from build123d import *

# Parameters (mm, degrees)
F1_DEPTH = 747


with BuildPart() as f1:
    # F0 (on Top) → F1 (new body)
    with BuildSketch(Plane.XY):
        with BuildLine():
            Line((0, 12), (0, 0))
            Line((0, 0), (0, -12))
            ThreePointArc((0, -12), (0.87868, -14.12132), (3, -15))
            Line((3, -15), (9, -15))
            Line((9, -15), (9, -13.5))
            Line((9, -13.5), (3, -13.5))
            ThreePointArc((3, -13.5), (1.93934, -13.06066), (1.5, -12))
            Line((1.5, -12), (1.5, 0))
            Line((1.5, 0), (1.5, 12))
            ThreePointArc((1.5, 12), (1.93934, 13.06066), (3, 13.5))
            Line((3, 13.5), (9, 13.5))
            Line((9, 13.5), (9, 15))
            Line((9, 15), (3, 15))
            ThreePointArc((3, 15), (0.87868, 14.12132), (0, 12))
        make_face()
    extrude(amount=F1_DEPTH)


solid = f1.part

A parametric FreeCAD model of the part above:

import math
import FreeCAD as App
import Part
import Sketcher

doc = App.newDocument("Part")
body = doc.addObject("PartDesign::Body", "Body")

# Sketch on XY plane
sketch1 = body.newObject("Sketcher::SketchObject", "Sketch")
sketch1.AttachmentSupport = (doc.getObject("XY_Plane"), [""])
sketch1.MapMode = "FlatFace"
sketch1.addGeometry(Part.LineSegment(App.Vector(0, 12, 0), App.Vector(0, -12, 0)), False)
sketch1.addGeometry(Part.ArcOfCircle(Part.Circle(App.Vector(3.000001, -11.999999, 0), App.Vector(0, 0, 1), 3.000001), math.radians(-179.999978), math.radians(-90.000022)), False)
sketch1.addGeometry(Part.LineSegment(App.Vector(3, -15, 0), App.Vector(9, -15, 0)), False)
sketch1.addGeometry(Part.LineSegment(App.Vector(9, -15, 0), App.Vector(9, -13.5, 0)), False)
sketch1.addGeometry(Part.LineSegment(App.Vector(9, -13.5, 0), App.Vector(3, -13.5, 0)), False)
sketch1.addGeometry(Part.ArcOfCircle(Part.Circle(App.Vector(3.000001, -11.999999, 0), App.Vector(0, 0, 1), 1.500001), math.radians(-179.999978), math.radians(-90.000022)), False)
sketch1.addGeometry(Part.LineSegment(App.Vector(1.5, -12, 0), App.Vector(1.5, 12, 0)), False)
sketch1.addGeometry(Part.ArcOfCircle(Part.Circle(App.Vector(3.000001, 11.999999, 0), App.Vector(0, 0, 1), 1.500001), math.radians(90.000022), math.radians(179.999978)), False)
sketch1.addGeometry(Part.LineSegment(App.Vector(3, 13.5, 0), App.Vector(9, 13.5, 0)), False)
sketch1.addGeometry(Part.LineSegment(App.Vector(9, 13.5, 0), App.Vector(9, 15, 0)), False)
sketch1.addGeometry(Part.LineSegment(App.Vector(9, 15, 0), App.Vector(3, 15, 0)), False)
sketch1.addGeometry(Part.ArcOfCircle(Part.Circle(App.Vector(3.000001, 11.999999, 0), App.Vector(0, 0, 1), 3.000001), math.radians(90.000022), math.radians(179.999978)), False)
sketch1.addConstraint(Sketcher.Constraint("Tangent", 0, 2, 1, 1))
sketch1.addConstraint(Sketcher.Constraint("Tangent", 1, 2, 2, 1))
sketch1.addConstraint(Sketcher.Constraint("Coincident", 2, 2, 3, 1))
sketch1.addConstraint(Sketcher.Constraint("Coincident", 3, 2, 4, 1))
sketch1.addConstraint(Sketcher.Constraint("Tangent", 4, 2, 5, 2))
sketch1.addConstraint(Sketcher.Constraint("Tangent", 5, 1, 6, 1))
sketch1.addConstraint(Sketcher.Constraint("Tangent", 6, 2, 7, 2))
sketch1.addConstraint(Sketcher.Constraint("Tangent", 7, 1, 8, 1))
sketch1.addConstraint(Sketcher.Constraint("Coincident", 8, 2, 9, 1))
sketch1.addConstraint(Sketcher.Constraint("Coincident", 9, 2, 10, 1))
sketch1.addConstraint(Sketcher.Constraint("Tangent", 10, 2, 11, 1))
sketch1.addConstraint(Sketcher.Constraint("Tangent", 11, 2, 0, 1))
sketch1.addConstraint(Sketcher.Constraint("Vertical", 0))
sketch1.addConstraint(Sketcher.Constraint("Horizontal", 2))
sketch1.addConstraint(Sketcher.Constraint("Vertical", 3))
sketch1.addConstraint(Sketcher.Constraint("Horizontal", 4))
sketch1.addConstraint(Sketcher.Constraint("Vertical", 6))
sketch1.addConstraint(Sketcher.Constraint("Horizontal", 8))
sketch1.addConstraint(Sketcher.Constraint("Vertical", 9))
sketch1.addConstraint(Sketcher.Constraint("Horizontal", 10))
sketch1.addConstraint(Sketcher.Constraint("Coincident", 5, 3, 1, 3))
sketch1.addConstraint(Sketcher.Constraint("Coincident", 11, 3, 7, 3))
sketch1.addConstraint(Sketcher.Constraint("Equal", 5, 7))
sketch1.addConstraint(Sketcher.Constraint("Symmetric", 0, 2, 11, 2, -1, 1))
sketch1.addConstraint(Sketcher.Constraint("Vertical", 3, 2, 8, 2))
sketch1.addConstraint(Sketcher.Constraint("Radius", 1, 3.000001))
sketch1.addConstraint(Sketcher.Constraint("Radius", 5, 1.500001))
sketch1.addConstraint(Sketcher.Constraint("DistanceX", 2, 1, 2, 2, 6.0))
sketch1.addConstraint(Sketcher.Constraint("DistanceY", 0, 2, 0, 1, 24.0))
pad1 = body.newObject("PartDesign::Pad", "Pad")
pad1.Profile = sketch1
pad1.Length = 747

doc.recompute()
